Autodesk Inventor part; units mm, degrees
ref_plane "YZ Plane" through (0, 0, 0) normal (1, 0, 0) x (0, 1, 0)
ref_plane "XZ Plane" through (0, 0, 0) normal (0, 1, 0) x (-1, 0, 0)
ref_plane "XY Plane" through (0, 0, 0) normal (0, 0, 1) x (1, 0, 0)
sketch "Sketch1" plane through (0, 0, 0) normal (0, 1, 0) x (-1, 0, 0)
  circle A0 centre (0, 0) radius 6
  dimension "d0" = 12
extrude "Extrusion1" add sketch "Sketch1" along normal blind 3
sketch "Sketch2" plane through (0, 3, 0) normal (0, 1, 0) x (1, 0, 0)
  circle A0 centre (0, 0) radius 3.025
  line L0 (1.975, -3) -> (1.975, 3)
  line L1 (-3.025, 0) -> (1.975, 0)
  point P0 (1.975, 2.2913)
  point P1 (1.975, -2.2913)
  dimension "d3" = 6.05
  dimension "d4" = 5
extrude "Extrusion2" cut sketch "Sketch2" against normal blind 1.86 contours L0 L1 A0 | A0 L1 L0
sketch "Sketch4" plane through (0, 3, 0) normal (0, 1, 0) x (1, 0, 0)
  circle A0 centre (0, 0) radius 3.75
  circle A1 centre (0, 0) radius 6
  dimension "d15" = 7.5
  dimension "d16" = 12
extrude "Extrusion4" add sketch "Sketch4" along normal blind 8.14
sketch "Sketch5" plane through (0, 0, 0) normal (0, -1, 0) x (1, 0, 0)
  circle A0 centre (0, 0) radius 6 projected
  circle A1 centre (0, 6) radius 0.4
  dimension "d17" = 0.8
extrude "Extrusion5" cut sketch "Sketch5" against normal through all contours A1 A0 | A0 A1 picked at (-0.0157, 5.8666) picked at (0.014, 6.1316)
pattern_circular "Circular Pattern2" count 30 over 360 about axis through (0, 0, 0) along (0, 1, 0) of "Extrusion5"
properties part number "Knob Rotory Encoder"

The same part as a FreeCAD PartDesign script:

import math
import FreeCAD as App
import Part
import Sketcher
from FreeCAD import Vector

doc = App.newDocument("Part")
body = doc.addObject("PartDesign::Body", "Body")

# Sketch on XZ plane
sketch1 = body.newObject("Sketcher::SketchObject", "Sketch")
sketch1.AttachmentSupport = (doc.getObject("XZ_Plane"), [""])
sketch1.MapMode = "FlatFace"
sketch1.addGeometry(Part.Circle(Vector(0, 0, 0), Vector(0, 0, 1), 6), False)
sketch1.addConstraint(Sketcher.Constraint("Coincident", 0, 3, -1, 1))
sketch1.addConstraint(Sketcher.Constraint("Diameter", 0, 12.0))
pad1 = body.newObject("PartDesign::Pad", "Pad")
pad1.Profile = sketch1
pad1.Length = 3
pad1.Reversed = True

# Sketch on XZ plane
sketch2 = body.newObject("Sketcher::SketchObject", "Sketch001")
sketch2.AttachmentSupport = (doc.getObject("XZ_Plane"), [""])
sketch2.MapMode = "FlatFace"
sketch2.AttachmentOffset = App.Placement(Vector(0, 0, -3), App.Rotation())
sketch2.addGeometry(Part.ArcOfCircle(Part.Circle(Vector(0, 0, 0), Vector(0, 0, 1), 3), math.radians(49), math.radians(311)), False)
sketch2.addGeometry(Part.LineSegment(Vector(2, 2.3, 0), Vector(2, -2.3, 0)), False)
sketch2.addConstraint(Sketcher.Constraint("Coincident", 0, 1, 1, 1))
sketch2.addConstraint(Sketcher.Constraint("Coincident", 1, 2, 0, 2))
sketch2.addConstraint(Sketcher.Constraint("Vertical", 1))
sketch2.addConstraint(Sketcher.Constraint("Coincident", 0, 3, -1, 1))
sketch2.addConstraint(Sketcher.Constraint("Radius", 0, 3.025))
sketch2.addConstraint(Sketcher.Constraint("DistanceY", 1, 2, 1, 1, 4.5826))
pocket1 = body.newObject("PartDesign::Pocket", "Pocket")
pocket1.Profile = sketch2
pocket1.Length = 1.86
pocket1.Reversed = True

# Sketch on XZ plane
sketch3 = body.newObject("Sketcher::SketchObject", "Sketch002")
sketch3.AttachmentSupport = (doc.getObject("XZ_Plane"), [""])
sketch3.MapMode = "FlatFace"
sketch3.AttachmentOffset = App.Placement(Vector(0, 0, -3), App.Rotation())
sketch3.addGeometry(Part.Circle(Vector(0, 0, 0), Vector(0, 0, 1), 6), False)
sketch3.addGeometry(Part.Circle(Vector(0, 0, 0), Vector(0, 0, 1), 3.8), False)
sketch3.addConstraint(Sketcher.Constraint("Coincident", 0, 3, -1, 1))
sketch3.addConstraint(Sketcher.Constraint("Coincident", 1, 3, -1, 1))
sketch3.addConstraint(Sketcher.Constraint("Diameter", 0, 12.0))
sketch3.addConstraint(Sketcher.Constraint("Diameter", 1, 7.5))
pad2 = body.newObject("PartDesign::Pad", "Pad001")
pad2.Profile = sketch3
pad2.Length = 8.14
pad2.Reversed = True

# Sketch on XZ plane
sketch4 = body.newObject("Sketcher::SketchObject", "Sketch003")
sketch4.AttachmentSupport = (doc.getObject("XZ_Plane"), [""])
sketch4.MapMode = "FlatFace"
sketch4.addGeometry(Part.Circle(Vector(0, 6, 0), Vector(0, 0, 1), 0.4), False)
sketch4.addConstraint(Sketcher.Constraint("PointOnObject", 0, 3, -2))
sketch4.addConstraint(Sketcher.Constraint("Diameter", 0, 0.8))
sketch4.addConstraint(Sketcher.Constraint("DistanceY", -1, 1, 0, 3, 6.0))
pocket2 = body.newObject("PartDesign::Pocket", "Pocket001")
pocket2.Profile = sketch4
pocket2.Type = "ThroughAll"
doc.recompute()

polarpattern = body.newObject("PartDesign::PolarPattern", "PolarPattern")
polarpattern.Originals = [pocket2]
polarpattern.Axis = (doc.getObject("Y_Axis"), [""])
polarpattern.Angle = 360
polarpattern.Occurrences = 30
body.Tip = polarpattern

doc.recompute()
